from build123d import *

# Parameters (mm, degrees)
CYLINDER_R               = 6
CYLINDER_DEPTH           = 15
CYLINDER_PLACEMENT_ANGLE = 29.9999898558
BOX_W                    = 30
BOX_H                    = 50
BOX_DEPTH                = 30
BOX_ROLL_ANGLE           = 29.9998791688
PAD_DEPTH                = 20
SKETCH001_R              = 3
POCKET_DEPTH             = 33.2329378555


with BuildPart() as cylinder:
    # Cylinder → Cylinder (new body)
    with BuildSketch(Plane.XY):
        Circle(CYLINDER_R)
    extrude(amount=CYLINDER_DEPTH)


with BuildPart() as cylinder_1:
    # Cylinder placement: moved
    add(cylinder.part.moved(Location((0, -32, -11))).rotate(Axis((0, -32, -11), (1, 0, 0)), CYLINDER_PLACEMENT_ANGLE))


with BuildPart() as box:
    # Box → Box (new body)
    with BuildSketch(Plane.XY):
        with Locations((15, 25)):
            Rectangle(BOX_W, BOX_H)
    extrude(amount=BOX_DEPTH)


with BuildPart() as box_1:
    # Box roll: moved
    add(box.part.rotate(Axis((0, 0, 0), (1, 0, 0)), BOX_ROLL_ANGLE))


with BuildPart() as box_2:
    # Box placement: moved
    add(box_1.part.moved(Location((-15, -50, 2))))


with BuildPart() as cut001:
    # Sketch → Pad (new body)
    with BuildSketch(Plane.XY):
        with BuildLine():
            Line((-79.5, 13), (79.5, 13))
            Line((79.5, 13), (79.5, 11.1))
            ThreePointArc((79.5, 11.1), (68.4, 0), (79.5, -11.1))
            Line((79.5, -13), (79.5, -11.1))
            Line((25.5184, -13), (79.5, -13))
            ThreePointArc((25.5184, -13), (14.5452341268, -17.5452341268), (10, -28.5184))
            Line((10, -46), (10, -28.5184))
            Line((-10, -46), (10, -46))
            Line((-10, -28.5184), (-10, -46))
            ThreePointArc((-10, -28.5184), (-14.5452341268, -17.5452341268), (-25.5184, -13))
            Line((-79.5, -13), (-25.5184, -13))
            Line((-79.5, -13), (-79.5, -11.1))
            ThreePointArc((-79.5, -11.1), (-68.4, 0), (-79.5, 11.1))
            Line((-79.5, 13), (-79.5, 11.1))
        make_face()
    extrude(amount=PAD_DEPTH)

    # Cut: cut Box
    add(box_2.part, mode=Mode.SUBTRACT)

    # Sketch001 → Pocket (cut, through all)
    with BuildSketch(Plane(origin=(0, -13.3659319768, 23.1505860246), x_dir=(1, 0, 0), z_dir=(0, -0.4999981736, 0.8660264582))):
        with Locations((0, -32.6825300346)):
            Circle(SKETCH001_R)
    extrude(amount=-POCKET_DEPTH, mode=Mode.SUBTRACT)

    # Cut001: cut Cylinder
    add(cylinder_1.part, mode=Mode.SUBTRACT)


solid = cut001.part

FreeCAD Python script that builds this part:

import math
import FreeCAD as App
import Part
import Sketcher


def add_polygon(sketch, points):
    """Adds a closed chain of lines whose ends are joined by coincident constraints."""
    first, n = sketch.GeometryCount, len(points)
    for a, b in zip(points, points[1:] + points[:1]):
        sketch.addGeometry(Part.LineSegment(App.Vector(*a, 0), App.Vector(*b, 0)), False)
    for i in range(n):
        sketch.addConstraint(Sketcher.Constraint("Coincident", first + i, 2, first + (i + 1) % n, 1))

doc = App.newDocument("Part")
body = doc.addObject("PartDesign::Body", "Body")

sketch1 = body.newObject("Sketcher::SketchObject", "Sketch")
sketch1.AttachmentSupport = (doc.getObject("XY_Plane"), [""])
sketch1.MapMode = "FlatFace"
sketch1.addGeometry(Part.Circle(App.Vector(0, 0, 0), App.Vector(0, 0, 1), 6), False)
sketch1.addConstraint(Sketcher.Constraint("Coincident", 0, 3, -1, 1))
sketch1.addConstraint(Sketcher.Constraint("Diameter", 0, 12.0))
pad1 = body.newObject("PartDesign::Pad", "Pad")
pad1.Profile = sketch1
pad1.Length = 15
body2 = doc.addObject("PartDesign::Body", "Body001")
doc.recompute()

body.Placement = App.Placement(App.Vector(0, -32, -11), App.Rotation(App.Vector(1, 0, 0), 29.99999))
boolean = body2.newObject("PartDesign::Boolean", "Boolean")
boolean.Type = "Fuse"
boolean.addObjects([body])
body3 = doc.addObject("PartDesign::Body", "Body002")

sketch2 = body3.newObject("Sketcher::SketchObject", "Sketch001")
sketch2.AttachmentSupport = (doc.getObject("XY_Plane002"), [""])
sketch2.MapMode = "FlatFace"
add_polygon(sketch2, [(0, 50), (0, 0), (30, 0), (30, 50)])
sketch2.addConstraint(Sketcher.Constraint("Vertical", 0))
sketch2.addConstraint(Sketcher.Constraint("Horizontal", 1))
sketch2.addConstraint(Sketcher.Constraint("Vertical", 2))
sketch2.addConstraint(Sketcher.Constraint("Horizontal", 3))
sketch2.addConstraint(Sketcher.Constraint("Coincident", 0, 2, -1, 1))
sketch2.addConstraint(Sketcher.Constraint("DistanceX", 1, 1, 1, 2, 30.0))
sketch2.addConstraint(Sketcher.Constraint("DistanceY", 0, 2, 0, 1, 50.0))
pad2 = body3.newObject("PartDesign::Pad", "Pad001")
pad2.Profile = sketch2
pad2.Length = 30
body4 = doc.addObject("PartDesign::Body", "Body003")
doc.recompute()

body3.Placement = App.Placement(App.Vector(0, 0, 0), App.Rotation(App.Vector(1, 0, 0), 29.999879))
boolean2 = body4.newObject("PartDesign::Boolean", "Boolean001")
boolean2.Type = "Fuse"
boolean2.addObjects([body3])
body5 = doc.addObject("PartDesign::Body", "Body004")
doc.recompute()

body4.Placement = App.Placement(App.Vector(-15, -50, 2), App.Rotation(App.Vector(0, 0, 1), 0))
boolean3 = body5.newObject("PartDesign::Boolean", "Boolean002")
boolean3.Type = "Fuse"
boolean3.addObjects([body4])
body6 = doc.addObject("PartDesign::Body", "Body005")

sketch3 = body6.newObject("Sketcher::SketchObject", "Sketch002")
sketch3.AttachmentSupport = (doc.getObject("XY_Plane005"), [""])
sketch3.MapMode = "FlatFace"
sketch3.addGeometry(Part.LineSegment(App.Vector(79.5, 13, 0), App.Vector(-79.5, 13, 0)), False)
sketch3.addGeometry(Part.LineSegment(App.Vector(-79.5, 13, 0), App.Vector(-79.5, 11.1, 0)), False)
sketch3.addGeometry(Part.ArcOfCircle(Part.Circle(App.Vector(-79.5, 0, 0), App.Vector(0, 0, 1), 11.1), math.radians(-90), math.radians(90)), False)
sketch3.addGeometry(Part.LineSegment(App.Vector(-79.5, -11.1, 0), App.Vector(-79.5, -13, 0)), False)
sketch3.addGeometry(Part.LineSegment(App.Vector(-79.5, -13, 0), App.Vector(-25.5, -13, 0)), False)
sketch3.addGeometry(Part.ArcOfCircle(Part.Circle(App.Vector(-25.5, -28.5, 0), App.Vector(0, 0, 1), 15.5), math.radians(0), math.radians(90)), False)
sketch3.addGeometry(Part.LineSegment(App.Vector(-10, -28.5, 0), App.Vector(-10, -46, 0)), False)
sketch3.addGeometry(Part.LineSegment(App.Vector(-10, -46, 0), App.Vector(10, -46, 0)), False)
sketch3.addGeometry(Part.LineSegment(App.Vector(10, -46, 0), App.Vector(10, -28.5, 0)), False)
sketch3.addGeometry(Part.ArcOfCircle(Part.Circle(App.Vector(25.5, -28.5, 0), App.Vector(0, 0, 1), 15.5), math.radians(90), math.radians(180)), False)
sketch3.addGeometry(Part.LineSegment(App.Vector(25.5, -13, 0), App.Vector(79.5, -13, 0)), False)
sketch3.addGeometry(Part.LineSegment(App.Vector(79.5, -13, 0), App.Vector(79.5, -11.1, 0)), False)
sketch3.addGeometry(Part.ArcOfCircle(Part.Circle(App.Vector(79.5, 0, 0), App.Vector(0, 0, 1), 11.1), math.radians(90), math.radians(270)), False)
sketch3.addGeometry(Part.LineSegment(App.Vector(79.5, 11.1, 0), App.Vector(79.5, 13, 0)), False)
sketch3.addConstraint(Sketcher.Constraint("Coincident", 0, 2, 1, 1))
sketch3.addConstraint(Sketcher.Constraint("Coincident", 1, 2, 2, 2))
sketch3.addConstraint(Sketcher.Constraint("Coincident", 2, 1, 3, 1))
sketch3.addConstraint(Sketcher.Constraint("Coincident", 3, 2, 4, 1))
sketch3.addConstraint(Sketcher.Constraint("Tangent", 4, 2, 5, 2))
sketch3.addConstraint(Sketcher.Constraint("Tangent", 5, 1, 6, 1))
sketch3.addConstraint(Sketcher.Constraint("Coincident", 6, 2, 7, 1))
sketch3.addConstraint(Sketcher.Constraint("Coincident", 7, 2, 8, 1))
sketch3.addConstraint(Sketcher.Constraint("Tangent", 8, 2, 9, 2))
sketch3.addConstraint(Sketcher.Constraint("Tangent", 9, 1, 10, 1))
sketch3.addConstraint(Sketcher.Constraint("Coincident", 10, 2, 11, 1))
sketch3.addConstraint(Sketcher.Constraint("Coincident", 11, 2, 12, 2))
sketch3.addConstraint(Sketcher.Constraint("Coincident", 12, 1, 13, 1))
sketch3.addConstraint(Sketcher.Constraint("Coincident", 13, 2, 0, 1))
sketch3.addConstraint(Sketcher.Constraint("Horizontal", 0))
sketch3.addConstraint(Sketcher.Constraint("Vertical", 1))
sketch3.addConstraint(Sketcher.Constraint("Vertical", 3))
sketch3.addConstraint(Sketcher.Constraint("Horizontal", 4))
sketch3.addConstraint(Sketcher.Constraint("Vertical", 6))
sketch3.addConstraint(Sketcher.Constraint("Horizontal", 7))
sketch3.addConstraint(Sketcher.Constraint("Vertical", 8))
sketch3.addConstraint(Sketcher.Constraint("Horizontal", 10))
sketch3.addConstraint(Sketcher.Constraint("Vertical", 11))
sketch3.addConstraint(Sketcher.Constraint("Vertical", 13))
sketch3.addConstraint(Sketcher.Constraint("Equal", 5, 9))
sketch3.addConstraint(Sketcher.Constraint("Equal", 2, 12))
sketch3.addConstraint(Sketcher.Constraint("Symmetric", 2, 3, 12, 3, -1, 1))
sketch3.addConstraint(Sketcher.Constraint("Symmetric", 0, 2, 10, 2, -1, 1))
sketch3.addConstraint(Sketcher.Constraint("Symmetric", 3, 2, 13, 2, -1, 1))
sketch3.addConstraint(Sketcher.Constraint("Symmetric", 2, 1, 11, 2, -2))
sketch3.addConstraint(Sketcher.Constraint("Vertical", 2, 3, 0, 2))
sketch3.addConstraint(Sketcher.Constraint("Equal", 4, 10))
sketch3.addConstraint(Sketcher.Constraint("Radius", 2, 11.1))
sketch3.addConstraint(Sketcher.Constraint("DistanceX", 0, 2, 0, 1, 159.0))
sketch3.addConstraint(Sketcher.Constraint("DistanceX", 7, 1, 7, 2, 20.0))
sketch3.addConstraint(Sketcher.Constraint("DistanceY", 1, 2, 1, 1, 1.9))
sketch3.addConstraint(Sketcher.Constraint("DistanceY", 6, 2, -1, 1, 46.0))
sketch3.addConstraint(Sketcher.Constraint("Radius", 5, 15.5184))
pad3 = body6.newObject("PartDesign::Pad", "Pad002")
pad3.Profile = sketch3
pad3.Length = 20
doc.recompute()

boolean4 = body6.newObject("PartDesign::Boolean", "Boolean003")
boolean4.Type = "Cut"
boolean4.addObjects([body5])

sketch4 = body6.newObject("Sketcher::SketchObject", "Sketch003")
sketch4.Placement = App.Placement(App.Vector(0, -13.365932, 23.150586), App.Rotation(App.Vector(1, 0, 0), App.Vector(0, 0.866026458, 0.499998174), App.Vector(0, -0.499998174, 0.866026458), "ZXY"))
sketch4.addGeometry(Part.Circle(App.Vector(0, -32.7, 0), App.Vector(0, 0, 1), 3), False)
sketch4.addConstraint(Sketcher.Constraint("PointOnObject", 0, 3, -2))
sketch4.addConstraint(Sketcher.Constraint("Diameter", 0, 6.0))
sketch4.addConstraint(Sketcher.Constraint("DistanceY", 0, 3, -1, 1, 32.68253))
pocket1 = body6.newObject("PartDesign::Pocket", "Pocket")
pocket1.Profile = sketch4
pocket1.Type = "ThroughAll"
doc.recompute()

boolean5 = body6.newObject("PartDesign::Boolean", "Boolean004")
boolean5.Type = "Cut"
boolean5.addObjects([body2])

doc.recompute()
